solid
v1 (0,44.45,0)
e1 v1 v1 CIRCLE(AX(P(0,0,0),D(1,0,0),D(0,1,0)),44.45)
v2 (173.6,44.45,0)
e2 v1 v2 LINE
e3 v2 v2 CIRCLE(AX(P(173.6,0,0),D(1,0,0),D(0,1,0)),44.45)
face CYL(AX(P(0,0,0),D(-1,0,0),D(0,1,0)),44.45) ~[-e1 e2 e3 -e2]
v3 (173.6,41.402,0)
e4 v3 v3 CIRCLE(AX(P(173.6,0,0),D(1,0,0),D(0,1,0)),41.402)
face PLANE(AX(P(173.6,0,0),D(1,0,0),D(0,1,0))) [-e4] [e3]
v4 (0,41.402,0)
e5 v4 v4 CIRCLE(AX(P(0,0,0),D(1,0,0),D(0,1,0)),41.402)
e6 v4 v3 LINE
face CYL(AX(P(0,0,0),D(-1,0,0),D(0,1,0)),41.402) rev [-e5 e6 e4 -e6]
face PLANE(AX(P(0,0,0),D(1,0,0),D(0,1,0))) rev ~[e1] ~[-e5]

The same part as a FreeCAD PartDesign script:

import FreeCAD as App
import Part
import Sketcher
from FreeCAD import Vector
Q = App.Units.Quantity

doc = App.newDocument("Part")
params = doc.addObject("Spreadsheet::Sheet", "Params")
for row, (alias, value) in enumerate([
    ("sketch1_diameter", "3.5 in"),
    ("sketch1_diameter2", "3.26 in"),
    ("pad1_length", "173.6 mm"),
], start=1):
    params.set(f"A{row}", alias)
    params.set(f"B{row}", "=" + value)
    params.setAlias(f"B{row}", alias)

body = doc.addObject("PartDesign::Body", "Body")

# Sketch on YZ plane
sketch1 = doc.addObject("Sketcher::SketchObject", "Sketch")
body.addObject(sketch1)
sketch1.AttachmentSupport = (doc.YZ_Plane, [""])
sketch1.MapMode = "FlatFace"
sketch1.addGeometry(Part.Circle(Vector(0, 0, 0), Vector(0, 0, 1), 44.45), False)
sketch1.addGeometry(Part.Circle(Vector(0, 0, 0), Vector(0, 0, 1), 41.402), False)
sketch1.addConstraint(Sketcher.Constraint("Coincident", 0, 3, -1, 1))
sketch1.addConstraint(Sketcher.Constraint("Coincident", 1, 3, -1, 1))
sketch1.addConstraint(Sketcher.Constraint("Diameter", 0, Q("3.5 in")))
sketch1.addConstraint(Sketcher.Constraint("Diameter", 1, Q("3.26 in")))
sketch1.setExpression("Constraints[2]", "Params.sketch1_diameter")
sketch1.setExpression("Constraints[3]", "Params.sketch1_diameter2")
pad1 = doc.addObject("PartDesign::Pad", "Pad")
body.addObject(pad1)
pad1.Profile = sketch1
pad1.setExpression("Length", "Params.pad1_length")

doc.recompute()
